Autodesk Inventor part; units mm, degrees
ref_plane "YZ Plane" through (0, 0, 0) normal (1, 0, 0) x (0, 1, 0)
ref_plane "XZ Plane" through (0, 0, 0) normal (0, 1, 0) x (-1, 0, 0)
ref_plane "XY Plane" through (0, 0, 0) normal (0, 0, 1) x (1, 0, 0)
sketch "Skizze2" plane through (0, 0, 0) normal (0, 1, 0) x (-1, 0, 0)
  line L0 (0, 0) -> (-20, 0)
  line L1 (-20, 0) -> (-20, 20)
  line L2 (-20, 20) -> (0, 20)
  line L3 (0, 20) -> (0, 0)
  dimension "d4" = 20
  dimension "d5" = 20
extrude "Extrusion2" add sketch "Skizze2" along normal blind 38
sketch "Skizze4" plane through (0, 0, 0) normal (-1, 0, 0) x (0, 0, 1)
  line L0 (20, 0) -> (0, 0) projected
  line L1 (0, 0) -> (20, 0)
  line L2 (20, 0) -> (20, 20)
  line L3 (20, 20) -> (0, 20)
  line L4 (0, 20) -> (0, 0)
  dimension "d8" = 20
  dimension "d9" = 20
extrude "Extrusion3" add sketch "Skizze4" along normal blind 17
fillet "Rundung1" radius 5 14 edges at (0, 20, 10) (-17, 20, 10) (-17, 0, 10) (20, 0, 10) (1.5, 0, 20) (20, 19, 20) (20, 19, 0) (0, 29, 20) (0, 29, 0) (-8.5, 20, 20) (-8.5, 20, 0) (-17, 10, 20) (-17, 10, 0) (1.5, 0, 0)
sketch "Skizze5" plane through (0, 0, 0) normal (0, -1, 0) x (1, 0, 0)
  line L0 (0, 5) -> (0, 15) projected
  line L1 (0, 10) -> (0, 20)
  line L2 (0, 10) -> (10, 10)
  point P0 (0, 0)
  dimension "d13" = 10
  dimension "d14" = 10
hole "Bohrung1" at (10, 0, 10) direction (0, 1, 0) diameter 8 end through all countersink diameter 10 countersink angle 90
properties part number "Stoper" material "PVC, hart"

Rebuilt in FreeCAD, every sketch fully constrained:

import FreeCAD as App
import Part
import Sketcher

V = App.Vector


def edges_at(feature, points):
    """Names of the edges that pass closest to the given points."""
    edges = feature.Shape.Edges
    near = lambda p: min(range(len(edges)), key=lambda i: edges[i].distToShape(Part.Vertex(*p))[0])
    return sorted({f"Edge{near(p) + 1}" for p in points})

doc = App.newDocument("Part")
body = doc.addObject("PartDesign::Body", "Body")

# Sketch on XZ plane
sketch1 = body.newObject("Sketcher::SketchObject", "Sketch")
sketch1.AttachmentSupport = (doc.getObject("XZ_Plane"), [""])
sketch1.MapMode = "FlatFace"
sketch1.addGeometry(Part.LineSegment(V(20, 0, 0), V(0, 0, 0)), False)
sketch1.addGeometry(Part.LineSegment(V(0, 0, 0), V(0, 20, 0)), False)
sketch1.addGeometry(Part.LineSegment(V(0, 20, 0), V(20, 20, 0)), False)
sketch1.addGeometry(Part.LineSegment(V(20, 20, 0), V(20, 0, 0)), False)
sketch1.addConstraint(Sketcher.Constraint("Coincident", 0, 2, 1, 1))
sketch1.addConstraint(Sketcher.Constraint("Coincident", 1, 2, 2, 1))
sketch1.addConstraint(Sketcher.Constraint("Coincident", 2, 2, 3, 1))
sketch1.addConstraint(Sketcher.Constraint("Coincident", 3, 2, 0, 1))
sketch1.addConstraint(Sketcher.Constraint("Horizontal", 0))
sketch1.addConstraint(Sketcher.Constraint("Vertical", 1))
sketch1.addConstraint(Sketcher.Constraint("Horizontal", 2))
sketch1.addConstraint(Sketcher.Constraint("Vertical", 3))
sketch1.addConstraint(Sketcher.Constraint("Coincident", 0, 2, -1, 1))
sketch1.addConstraint(Sketcher.Constraint("Equal", 2, 1))
sketch1.addConstraint(Sketcher.Constraint("DistanceX", 0, 2, 0, 1, 20.0))
pad1 = body.newObject("PartDesign::Pad", "Pad")
pad1.Profile = sketch1
pad1.Length = 38
pad1.Reversed = True

# Sketch on YZ plane
sketch2 = body.newObject("Sketcher::SketchObject", "Sketch001")
sketch2.AttachmentSupport = (doc.getObject("YZ_Plane"), [""])
sketch2.MapMode = "FlatFace"
sketch2.addGeometry(Part.LineSegment(V(0, 0, 0), V(0, 20, 0)), False)
sketch2.addGeometry(Part.LineSegment(V(0, 20, 0), V(20, 20, 0)), False)
sketch2.addGeometry(Part.LineSegment(V(20, 20, 0), V(20, 0, 0)), False)
sketch2.addGeometry(Part.LineSegment(V(20, 0, 0), V(0, 0, 0)), False)
sketch2.addConstraint(Sketcher.Constraint("Coincident", 0, 2, 1, 1))
sketch2.addConstraint(Sketcher.Constraint("Coincident", 1, 2, 2, 1))
sketch2.addConstraint(Sketcher.Constraint("Coincident", 2, 2, 3, 1))
sketch2.addConstraint(Sketcher.Constraint("Coincident", 3, 2, 0, 1))
sketch2.addConstraint(Sketcher.Constraint("Vertical", 0))
sketch2.addConstraint(Sketcher.Constraint("Horizontal", 1))
sketch2.addConstraint(Sketcher.Constraint("Vertical", 2))
sketch2.addConstraint(Sketcher.Constraint("Horizontal", 3))
sketch2.addConstraint(Sketcher.Constraint("Coincident", 3, 2, -1, 1))
sketch2.addConstraint(Sketcher.Constraint("Equal", 3, 0))
sketch2.addConstraint(Sketcher.Constraint("DistanceX", 1, 1, 1, 2, 20.0))
pad2 = body.newObject("PartDesign::Pad", "Pad001")
pad2.Profile = sketch2
pad2.Length = 17
pad2.Reversed = True
doc.recompute()

fillet = body.newObject("PartDesign::Fillet", "Fillet")
fillet.Base = (pad2, edges_at(pad2, [
    (0, 20, 10),
    (-17, 20, 10),
    (-17, 0, 10),
    (20, 0, 10),
    (1.5, 0, 20),
    (20, 19, 20),
    (20, 19, 0),
    (0, 29, 20),
    (0, 29, 0),
    (-8.5, 20, 20),
    (-8.5, 20, 0),
    (-17, 10, 20),
    (-17, 10, 0),
    (1.5, 0, 0),
]))
fillet.Radius = 5

# Sketch on XZ plane
sketch3 = body.newObject("Sketcher::SketchObject", "Sketch002")
sketch3.AttachmentSupport = (doc.getObject("XZ_Plane"), [""])
sketch3.MapMode = "FlatFace"
sketch3.addGeometry(Part.Circle(V(10, 10, 0), V(0, 0, 1), 4), False)
sketch3.addConstraint(Sketcher.Constraint("Diameter", 0, 8.0))
sketch3.addConstraint(Sketcher.Constraint("DistanceX", -1, 1, 0, 3, 10.0))
sketch3.addConstraint(Sketcher.Constraint("DistanceY", -1, 1, 0, 3, 10.0))
doc.recompute()
hole = body.newObject("PartDesign::Hole", "Hole")
hole.Profile = sketch3
hole.ThreadType = "None"
hole.Diameter = 8
hole.DepthType = "ThroughAll"
hole.HoleCutType = "Countersink"
hole.HoleCutDiameter = 10
hole.HoleCutCountersinkAngle = 90

doc.recompute()
